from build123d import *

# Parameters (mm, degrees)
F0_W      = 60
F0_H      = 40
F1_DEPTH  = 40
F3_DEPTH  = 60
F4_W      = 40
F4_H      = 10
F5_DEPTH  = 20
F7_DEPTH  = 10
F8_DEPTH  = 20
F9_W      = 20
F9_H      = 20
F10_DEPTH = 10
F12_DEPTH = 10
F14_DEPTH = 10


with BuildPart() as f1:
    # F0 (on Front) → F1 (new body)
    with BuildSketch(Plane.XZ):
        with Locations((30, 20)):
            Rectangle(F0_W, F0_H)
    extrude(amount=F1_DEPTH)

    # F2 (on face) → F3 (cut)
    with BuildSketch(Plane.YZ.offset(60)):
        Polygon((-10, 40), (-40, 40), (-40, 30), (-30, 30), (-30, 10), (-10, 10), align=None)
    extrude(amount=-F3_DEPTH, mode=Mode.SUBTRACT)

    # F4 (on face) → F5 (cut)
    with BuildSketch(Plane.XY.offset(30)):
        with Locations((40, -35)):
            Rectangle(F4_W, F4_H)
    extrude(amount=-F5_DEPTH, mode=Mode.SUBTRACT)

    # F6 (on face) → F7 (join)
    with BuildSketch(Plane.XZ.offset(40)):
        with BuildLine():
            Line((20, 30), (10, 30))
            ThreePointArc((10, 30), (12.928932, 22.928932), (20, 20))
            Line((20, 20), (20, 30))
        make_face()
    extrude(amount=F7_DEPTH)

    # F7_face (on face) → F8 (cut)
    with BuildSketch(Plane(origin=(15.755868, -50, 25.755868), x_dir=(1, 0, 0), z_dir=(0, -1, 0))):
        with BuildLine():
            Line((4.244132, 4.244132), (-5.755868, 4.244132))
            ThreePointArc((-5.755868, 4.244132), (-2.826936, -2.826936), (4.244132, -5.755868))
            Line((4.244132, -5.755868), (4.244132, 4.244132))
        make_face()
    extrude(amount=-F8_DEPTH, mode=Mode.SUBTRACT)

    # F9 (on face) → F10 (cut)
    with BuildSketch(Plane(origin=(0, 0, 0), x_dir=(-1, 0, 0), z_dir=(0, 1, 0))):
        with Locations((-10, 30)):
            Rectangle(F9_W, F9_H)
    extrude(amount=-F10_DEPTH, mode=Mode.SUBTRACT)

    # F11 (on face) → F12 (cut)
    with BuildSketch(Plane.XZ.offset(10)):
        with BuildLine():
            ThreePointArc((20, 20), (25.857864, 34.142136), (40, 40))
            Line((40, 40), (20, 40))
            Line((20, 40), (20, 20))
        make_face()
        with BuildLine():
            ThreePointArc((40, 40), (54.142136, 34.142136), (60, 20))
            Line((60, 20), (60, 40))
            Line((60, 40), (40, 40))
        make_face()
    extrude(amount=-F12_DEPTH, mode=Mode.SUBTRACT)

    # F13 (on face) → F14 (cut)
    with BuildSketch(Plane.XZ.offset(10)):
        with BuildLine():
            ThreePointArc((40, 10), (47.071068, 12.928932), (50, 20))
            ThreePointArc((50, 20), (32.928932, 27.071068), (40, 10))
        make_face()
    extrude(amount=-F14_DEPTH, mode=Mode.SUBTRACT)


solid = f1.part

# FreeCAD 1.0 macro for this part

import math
import FreeCAD as App
import Part
import Sketcher
from FreeCAD import Vector
Q = App.Units.Quantity


def add_polygon(sketch, points):
    """Adds a closed chain of lines whose ends are joined by coincident constraints."""
    first, n = sketch.GeometryCount, len(points)
    for a, b in zip(points, points[1:] + points[:1]):
        sketch.addGeometry(Part.LineSegment(App.Vector(*a, 0), App.Vector(*b, 0)), False)
    for i in range(n):
        sketch.addConstraint(Sketcher.Constraint("Coincident", first + i, 2, first + (i + 1) % n, 1))

doc = App.newDocument("Part")
params = doc.addObject("Spreadsheet::Sheet", "Params")
for row, (alias, value) in enumerate([
    ("sketch1_width", "60 mm"),
    ("sketch1_height", "40 mm"),
    ("pad1_length", "40 mm"),
    ("sketch2_width", "30 mm"),
    ("sketch2_width2", "10 mm"),
    ("pocket1_length", "60 mm"),
    ("sketch3_width", "40 mm"),
    ("sketch3_height", "10 mm"),
    ("pocket2_length", "20 mm"),
    ("sketch4_radius", "9.999999 mm"),
    ("pad2_length", "10 mm"),
    ("sketch5_radius", "9.999999 mm"),
    ("pocket3_length", "20 mm"),
    ("sketch6_width", "20 mm"),
    ("pocket4_length", "10 mm"),
    ("sketch7_radius", "19.999999 mm"),
    ("pocket5_length", "10 mm"),
    ("sketch8_radius", "9.999999 mm"),
    ("pocket6_length", "10 mm"),
], start=1):
    params.set(f"A{row}", alias)
    params.set(f"B{row}", "=" + value)
    params.setAlias(f"B{row}", alias)

body = doc.addObject("PartDesign::Body", "Body")

# Sketch on XZ plane
sketch1 = body.newObject("Sketcher::SketchObject", "Sketch")
sketch1.AttachmentSupport = (doc.getObject("XZ_Plane"), [""])
sketch1.MapMode = "FlatFace"
add_polygon(sketch1, [(0, 40), (0, 0), (60, 0), (60, 40)])  # lines 0-3
sketch1.addConstraint([
    Sketcher.Constraint("Vertical", 0),
    Sketcher.Constraint("Horizontal", 1),
    Sketcher.Constraint("Vertical", 2),
    Sketcher.Constraint("Horizontal", 3),
    Sketcher.Constraint("Coincident", 0, 2, -1, 1),
    Sketcher.Constraint("DistanceX", 1, 1, 1, 2, Q("60 mm")),
    Sketcher.Constraint("DistanceY", 0, 2, 0, 1, Q("40 mm")),
])
sketch1.setExpression("Constraints[9]", "Params.sketch1_width")
sketch1.setExpression("Constraints[10]", "Params.sketch1_height")
pad1 = body.newObject("PartDesign::Pad", "Pad")
pad1.Profile = sketch1
pad1.setExpression("Length", "Params.pad1_length")

# Sketch on YZ plane
sketch2 = body.newObject("Sketcher::SketchObject", "Sketch001")
sketch2.AttachmentSupport = (doc.getObject("YZ_Plane"), [""])
sketch2.MapMode = "FlatFace"
sketch2.AttachmentOffset = App.Placement(Vector(0, 0, 60), App.Rotation())
add_polygon(sketch2, [(-10, 40), (-40, 40), (-40, 30), (-30, 30), (-30, 10), (-10, 10)])  # lines 0-5
sketch2.addConstraint([
    Sketcher.Constraint("Horizontal", 0),
    Sketcher.Constraint("Vertical", 1),
    Sketcher.Constraint("Horizontal", 2),
    Sketcher.Constraint("Vertical", 3),
    Sketcher.Constraint("Horizontal", 4),
    Sketcher.Constraint("Vertical", 5),
    Sketcher.Constraint("Equal", 2, 1),
    Sketcher.Constraint("Equal", 4, 3),
    Sketcher.Constraint("DistanceX", 0, 2, 0, 1, Q("30 mm")),
    Sketcher.Constraint("DistanceX", 2, 1, 2, 2, Q("10 mm")),
    Sketcher.Constraint("DistanceX", 0, 2, -1, 1, Q("40 mm")),
    Sketcher.Constraint("DistanceY", -1, 1, 0, 2, Q("40 mm")),
])
sketch2.setExpression("Constraints[14]", "Params.sketch2_width")
sketch2.setExpression("Constraints[15]", "Params.sketch2_width2")
pocket1 = body.newObject("PartDesign::Pocket", "Pocket")
pocket1.Profile = sketch2
pocket1.setExpression("Length", "Params.pocket1_length")

# Sketch on XY plane
sketch3 = body.newObject("Sketcher::SketchObject", "Sketch002")
sketch3.AttachmentSupport = (doc.getObject("XY_Plane"), [""])
sketch3.MapMode = "FlatFace"
sketch3.AttachmentOffset = App.Placement(Vector(0, 0, 30), App.Rotation())
add_polygon(sketch3, [(20, -30), (20, -40), (60, -40), (60, -30)])  # lines 0-3
sketch3.addConstraint([
    Sketcher.Constraint("Vertical", 0),
    Sketcher.Constraint("Horizontal", 1),
    Sketcher.Constraint("Vertical", 2),
    Sketcher.Constraint("Horizontal", 3),
    Sketcher.Constraint("DistanceX", 1, 1, 1, 2, Q("40 mm")),
    Sketcher.Constraint("DistanceY", 0, 2, 0, 1, Q("10 mm")),
    Sketcher.Constraint("DistanceX", -1, 1, 0, 2, Q("20 mm")),
    Sketcher.Constraint("DistanceY", 0, 2, -1, 1, Q("40 mm")),
])
sketch3.setExpression("Constraints[8]", "Params.sketch3_width")
sketch3.setExpression("Constraints[9]", "Params.sketch3_height")
pocket2 = body.newObject("PartDesign::Pocket", "Pocket001")
pocket2.Profile = sketch3
pocket2.setExpression("Length", "Params.pocket2_length")

# Sketch on XZ plane
sketch4 = body.newObject("Sketcher::SketchObject", "Sketch003")
sketch4.AttachmentSupport = (doc.getObject("XZ_Plane"), [""])
sketch4.MapMode = "FlatFace"
sketch4.AttachmentOffset = App.Placement(Vector(0, 0, 40), App.Rotation())
sketch4.addGeometry([
    Part.LineSegment(Vector(20, 30, 0), Vector(10, 30, 0)),
    Part.ArcOfCircle(Part.Circle(Vector(19.999999, 29.999999, 0), Vector(0, 0, 1), 9.999999), math.radians(179.999996), math.radians(270.000004)),
    Part.LineSegment(Vector(20, 20, 0), Vector(20, 30, 0)),
], False)
sketch4.addConstraint([
    Sketcher.Constraint("Coincident", 0, 2, 1, 1),
    Sketcher.Constraint("Coincident", 1, 2, 2, 1),
    Sketcher.Constraint("Coincident", 2, 2, 0, 1),
    Sketcher.Constraint("Horizontal", 0),
    Sketcher.Constraint("Vertical", 2),
    Sketcher.Constraint("Coincident", 2, 2, 1, 3),
    Sketcher.Constraint("Radius", 1, Q("9.999999 mm")),
    Sketcher.Constraint("DistanceX", -1, 1, 1, 3, Q("19.999999 mm")),
    Sketcher.Constraint("DistanceY", -1, 1, 1, 3, Q("29.999999 mm")),
])
sketch4.setExpression("Constraints[6]", "Params.sketch4_radius")
pad2 = body.newObject("PartDesign::Pad", "Pad001")
pad2.Profile = sketch4
pad2.setExpression("Length", "Params.pad2_length")

# Sketch on XZ plane
sketch5 = body.newObject("Sketcher::SketchObject", "Sketch004")
sketch5.AttachmentSupport = (doc.getObject("XZ_Plane"), [""])
sketch5.MapMode = "FlatFace"
sketch5.AttachmentOffset = App.Placement(Vector(0, 0, 50), App.Rotation())
sketch5.addGeometry([
    Part.LineSegment(Vector(20, 30, 0), Vector(10, 30, 0)),
    Part.ArcOfCircle(Part.Circle(Vector(19.999999, 29.999999, 0), Vector(0, 0, 1), 9.999999), math.radians(179.999996), math.radians(270.000004)),
    Part.LineSegment(Vector(20, 20, 0), Vector(20, 30, 0)),
], False)
sketch5.addConstraint([
    Sketcher.Constraint("Coincident", 0, 2, 1, 1),
    Sketcher.Constraint("Coincident", 1, 2, 2, 1),
    Sketcher.Constraint("Coincident", 2, 2, 0, 1),
    Sketcher.Constraint("Horizontal", 0),
    Sketcher.Constraint("Vertical", 2),
    Sketcher.Constraint("Coincident", 2, 2, 1, 3),
    Sketcher.Constraint("Radius", 1, Q("9.999999 mm")),
    Sketcher.Constraint("DistanceX", -1, 1, 1, 3, Q("19.999999 mm")),
    Sketcher.Constraint("DistanceY", -1, 1, 1, 3, Q("29.999999 mm")),
])
sketch5.setExpression("Constraints[6]", "Params.sketch5_radius")
pocket3 = body.newObject("PartDesign::Pocket", "Pocket002")
pocket3.Profile = sketch5
pocket3.setExpression("Length", "Params.pocket3_length")

# Sketch on XZ plane
sketch6 = body.newObject("Sketcher::SketchObject", "Sketch005")
sketch6.AttachmentSupport = (doc.getObject("XZ_Plane"), [""])
sketch6.MapMode = "FlatFace"
add_polygon(sketch6, [(20, 40), (20, 20), (0, 20), (0, 40)])  # lines 0-3
sketch6.addConstraint([
    Sketcher.Constraint("Vertical", 0),
    Sketcher.Constraint("Horizontal", 1),
    Sketcher.Constraint("Vertical", 2),
    Sketcher.Constraint("Horizontal", 3),
    Sketcher.Constraint("PointOnObject", 1, 2, -2),
    Sketcher.Constraint("Equal", 3, 0),
    Sketcher.Constraint("DistanceX", 1, 2, 1, 1, Q("20 mm")),
    Sketcher.Constraint("DistanceY", -1, 1, 0, 2, Q("20 mm")),
])
sketch6.setExpression("Constraints[10]", "Params.sketch6_width")
pocket4 = body.newObject("PartDesign::Pocket", "Pocket003")
pocket4.Profile = sketch6
pocket4.setExpression("Length", "Params.pocket4_length")
pocket4.Reversed = True

# Sketch on XZ plane
sketch7 = body.newObject("Sketcher::SketchObject", "Sketch006")
sketch7.AttachmentSupport = (doc.getObject("XZ_Plane"), [""])
sketch7.MapMode = "FlatFace"
sketch7.AttachmentOffset = App.Placement(Vector(0, 0, 10), App.Rotation())
sketch7.addGeometry([
    Part.ArcOfCircle(Part.Circle(Vector(39.999999, 20.000001, 0), Vector(0, 0, 1), 19.999999), math.radians(89.999996), math.radians(180.000004)),  # 0
    Part.LineSegment(Vector(40, 40, 0), Vector(20, 40, 0)),  # 1
    Part.LineSegment(Vector(20, 40, 0), Vector(20, 20, 0)),  # 2
    Part.ArcOfCircle(Part.Circle(Vector(40.000001, 20.000001, 0), Vector(0, 0, 1), 19.999999), math.radians(-0.000004), math.radians(90.000004)),  # 3
    Part.LineSegment(Vector(60, 20, 0), Vector(60, 40, 0)),  # 4
    Part.LineSegment(Vector(60, 40, 0), Vector(40, 40, 0)),  # 5
], False)
sketch7.addConstraint([
    Sketcher.Constraint("Tangent", 0, 1, 1, 1),
    Sketcher.Constraint("Coincident", 1, 2, 2, 1),
    Sketcher.Constraint("Tangent", 2, 2, 0, 2),
    Sketcher.Constraint("Tangent", 3, 1, 4, 1),
    Sketcher.Constraint("Coincident", 4, 2, 5, 1),
    Sketcher.Constraint("Tangent", 5, 2, 3, 2),
    Sketcher.Constraint("Horizontal", 1),
    Sketcher.Constraint("Vertical", 2),
    Sketcher.Constraint("Vertical", 4),
    Sketcher.Constraint("Horizontal", 5),
    Sketcher.Constraint("Coincident", 3, 3, 0, 3),
    Sketcher.Constraint("Equal", 0, 3),
    Sketcher.Constraint("Radius", 0, Q("19.999999 mm")),
    Sketcher.Constraint("DistanceX", -1, 1, 0, 3, Q("39.999999 mm")),
    Sketcher.Constraint("DistanceY", -1, 1, 0, 3, Q("20.000001 mm")),
])
sketch7.setExpression("Constraints[12]", "Params.sketch7_radius")
pocket5 = body.newObject("PartDesign::Pocket", "Pocket004")
pocket5.Profile = sketch7
pocket5.setExpression("Length", "Params.pocket5_length")

# Sketch on XZ plane
sketch8 = body.newObject("Sketcher::SketchObject", "Sketch007")
sketch8.AttachmentSupport = (doc.getObject("XZ_Plane"), [""])
sketch8.MapMode = "FlatFace"
sketch8.AttachmentOffset = App.Placement(Vector(0, 0, 10), App.Rotation())
sketch8.addGeometry([
    Part.ArcOfCircle(Part.Circle(Vector(40.000001, 19.999999, 0), Vector(0, 0, 1), 9.999999), math.radians(-90.000004), math.radians(0.000004)),
    Part.ArcOfCircle(Part.Circle(Vector(40, 20, 0), Vector(0, 0, 1), 10), math.radians(-0.000001), math.radians(270.000001)),
], False)
sketch8.addConstraint([
    Sketcher.Constraint("Tangent", 0, 1, 1, 2),
    Sketcher.Constraint("Coincident", 1, 1, 0, 2),
    Sketcher.Constraint("Horizontal", 0, 3, 1, 1),
    Sketcher.Constraint("Vertical", 1, 3, 0, 1),
    Sketcher.Constraint("Radius", 0, Q("9.999999 mm")),
    Sketcher.Constraint("DistanceX", -1, 1, 0, 3, Q("40.000001 mm")),
    Sketcher.Constraint("DistanceY", -1, 1, 0, 3, Q("19.999999 mm")),
])
sketch8.setExpression("Constraints[4]", "Params.sketch8_radius")
pocket6 = body.newObject("PartDesign::Pocket", "Pocket005")
pocket6.Profile = sketch8
pocket6.setExpression("Length", "Params.pocket6_length")

doc.recompute()
